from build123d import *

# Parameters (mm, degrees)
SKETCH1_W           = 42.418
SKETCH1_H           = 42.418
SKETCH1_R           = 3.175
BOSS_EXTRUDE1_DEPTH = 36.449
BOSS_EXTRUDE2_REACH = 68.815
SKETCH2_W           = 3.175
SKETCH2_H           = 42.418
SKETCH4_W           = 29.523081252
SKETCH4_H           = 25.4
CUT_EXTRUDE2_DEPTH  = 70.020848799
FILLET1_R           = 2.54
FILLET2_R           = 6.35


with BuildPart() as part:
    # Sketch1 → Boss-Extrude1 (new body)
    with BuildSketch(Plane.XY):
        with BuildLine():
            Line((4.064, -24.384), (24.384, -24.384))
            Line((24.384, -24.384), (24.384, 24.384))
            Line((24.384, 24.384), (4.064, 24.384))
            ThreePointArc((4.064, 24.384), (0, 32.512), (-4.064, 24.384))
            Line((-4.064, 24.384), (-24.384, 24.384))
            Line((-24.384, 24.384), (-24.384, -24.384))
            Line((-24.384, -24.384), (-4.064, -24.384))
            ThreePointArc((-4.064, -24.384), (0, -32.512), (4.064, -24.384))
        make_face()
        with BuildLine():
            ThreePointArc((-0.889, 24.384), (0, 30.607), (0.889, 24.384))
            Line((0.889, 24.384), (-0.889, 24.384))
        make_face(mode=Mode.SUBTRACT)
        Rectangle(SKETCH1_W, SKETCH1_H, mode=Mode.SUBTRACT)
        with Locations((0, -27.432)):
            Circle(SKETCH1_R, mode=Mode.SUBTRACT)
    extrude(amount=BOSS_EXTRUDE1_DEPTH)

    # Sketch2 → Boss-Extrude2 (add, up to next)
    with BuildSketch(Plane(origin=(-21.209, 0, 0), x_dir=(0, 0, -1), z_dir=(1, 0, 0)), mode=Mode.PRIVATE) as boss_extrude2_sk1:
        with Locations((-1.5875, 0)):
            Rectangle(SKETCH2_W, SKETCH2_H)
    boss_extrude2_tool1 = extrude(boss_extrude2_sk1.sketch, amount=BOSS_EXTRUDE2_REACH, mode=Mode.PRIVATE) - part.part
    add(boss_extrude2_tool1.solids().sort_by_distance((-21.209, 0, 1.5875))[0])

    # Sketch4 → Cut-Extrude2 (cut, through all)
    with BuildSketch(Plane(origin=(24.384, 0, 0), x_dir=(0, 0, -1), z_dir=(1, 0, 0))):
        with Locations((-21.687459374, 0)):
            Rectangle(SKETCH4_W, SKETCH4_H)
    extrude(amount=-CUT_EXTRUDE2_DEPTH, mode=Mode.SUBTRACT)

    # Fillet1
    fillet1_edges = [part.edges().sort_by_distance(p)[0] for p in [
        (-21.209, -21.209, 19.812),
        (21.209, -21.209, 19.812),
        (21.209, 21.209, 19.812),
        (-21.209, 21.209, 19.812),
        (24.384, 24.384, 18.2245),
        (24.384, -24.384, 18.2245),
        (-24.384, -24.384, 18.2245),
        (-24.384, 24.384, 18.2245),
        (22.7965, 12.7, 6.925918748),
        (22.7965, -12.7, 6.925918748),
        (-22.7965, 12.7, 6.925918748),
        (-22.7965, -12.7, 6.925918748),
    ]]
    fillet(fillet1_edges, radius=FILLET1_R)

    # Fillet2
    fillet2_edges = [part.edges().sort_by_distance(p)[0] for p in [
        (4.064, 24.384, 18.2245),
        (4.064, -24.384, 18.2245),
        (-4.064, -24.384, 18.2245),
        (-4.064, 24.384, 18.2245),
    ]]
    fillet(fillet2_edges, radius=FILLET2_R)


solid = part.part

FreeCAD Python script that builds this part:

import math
import FreeCAD as App
import Part
import Sketcher

V = App.Vector
Q = App.Units.Quantity


def edges_at(feature, points):
    """Names of the edges that pass closest to the given points."""
    edges = feature.Shape.Edges
    near = lambda p: min(range(len(edges)), key=lambda i: edges[i].distToShape(Part.Vertex(*p))[0])
    return sorted({f"Edge{near(p) + 1}" for p in points})

doc = App.newDocument("Part")
params = doc.addObject("Spreadsheet::Sheet", "Params")
for row, (alias, value) in enumerate([
    ("sketch1_radius", "0.2 in"),
    ("sketch1_diameter", "0.25 in"),
    ("sketch1_width", "0.8 in"),
    ("sketch1_width2", "1.67 in"),
    ("sketch1_width3", "0.07 in"),
    ("pad1_length", "1.435 in"),
    ("sketch2_width", "1.67 in"),
    ("sketch2_height", "0.125 in"),
    ("sketch3_width", "1 in"),
    ("fillet_radius", "0.1 in"),
    ("fillet2_radius", "0.25 in"),
], start=1):
    params.set(f"A{row}", alias)
    params.set(f"B{row}", "=" + value)
    params.setAlias(f"B{row}", alias)

body = doc.addObject("PartDesign::Body", "Body")

# Sketch on XY plane
sketch1 = body.newObject("Sketcher::SketchObject", "Sketch")
sketch1.AttachmentSupport = (doc.getObject("XY_Plane"), [""])
sketch1.MapMode = "FlatFace"
sketch1.addGeometry(Part.LineSegment(V(4.1, -24.4, 0), V(24.4, -24.4, 0)), False)
sketch1.addGeometry(Part.LineSegment(V(24.4, -24.4, 0), V(24.4, 24.4, 0)), False)
sketch1.addGeometry(Part.LineSegment(V(24.4, 24.4, 0), V(4.1, 24.4, 0)), False)
sketch1.addGeometry(Part.ArcOfCircle(Part.Circle(V(0, 27.4, 0), V(0, 0, 1), 5.1), math.radians(-37), math.radians(217)), False)
sketch1.addGeometry(Part.LineSegment(V(-4.1, 24.4, 0), V(-24.4, 24.4, 0)), False)
sketch1.addGeometry(Part.LineSegment(V(-24.4, 24.4, 0), V(-24.4, -24.4, 0)), False)
sketch1.addGeometry(Part.LineSegment(V(-24.4, -24.4, 0), V(-4.1, -24.4, 0)), False)
sketch1.addGeometry(Part.ArcOfCircle(Part.Circle(V(0, -27.4, 0), V(0, 0, 1), 5.1), math.radians(143), math.radians(397)), False)
sketch1.addGeometry(Part.Circle(V(0, -27.4, 0), V(0, 0, 1), 3.2), False)
sketch1.addGeometry(Part.LineSegment(V(21.2, -21.2, 0), V(-21.2, -21.2, 0)), False)
sketch1.addGeometry(Part.LineSegment(V(-21.2, -21.2, 0), V(-21.2, 21.2, 0)), False)
sketch1.addGeometry(Part.LineSegment(V(-21.2, 21.2, 0), V(21.2, 21.2, 0)), False)
sketch1.addGeometry(Part.LineSegment(V(21.2, 21.2, 0), V(21.2, -21.2, 0)), False)
sketch1.addGeometry(Part.LineSegment(V(0.9, 24.4, 0), V(-0.9, 24.4, 0)), False)
sketch1.addGeometry(Part.ArcOfCircle(Part.Circle(V(0, 27.4, 0), V(0, 0, 1), 3.2), math.radians(-74), math.radians(254)), False)
sketch1.addConstraint(Sketcher.Constraint("Coincident", 0, 2, 1, 1))
sketch1.addConstraint(Sketcher.Constraint("Coincident", 1, 2, 2, 1))
sketch1.addConstraint(Sketcher.Constraint("Coincident", 2, 2, 3, 1))
sketch1.addConstraint(Sketcher.Constraint("Coincident", 3, 2, 4, 1))
sketch1.addConstraint(Sketcher.Constraint("Coincident", 4, 2, 5, 1))
sketch1.addConstraint(Sketcher.Constraint("Coincident", 5, 2, 6, 1))
sketch1.addConstraint(Sketcher.Constraint("Coincident", 6, 2, 7, 1))
sketch1.addConstraint(Sketcher.Constraint("Coincident", 7, 2, 0, 1))
sketch1.addConstraint(Sketcher.Constraint("Coincident", 9, 2, 10, 1))
sketch1.addConstraint(Sketcher.Constraint("Coincident", 10, 2, 11, 1))
sketch1.addConstraint(Sketcher.Constraint("Coincident", 11, 2, 12, 1))
sketch1.addConstraint(Sketcher.Constraint("Coincident", 12, 2, 9, 1))
sketch1.addConstraint(Sketcher.Constraint("Coincident", 13, 1, 14, 1))
sketch1.addConstraint(Sketcher.Constraint("Coincident", 14, 2, 13, 2))
sketch1.addConstraint(Sketcher.Constraint("Horizontal", 0))
sketch1.addConstraint(Sketcher.Constraint("Vertical", 1))
sketch1.addConstraint(Sketcher.Constraint("Horizontal", 2))
sketch1.addConstraint(Sketcher.Constraint("Horizontal", 4))
sketch1.addConstraint(Sketcher.Constraint("Vertical", 5))
sketch1.addConstraint(Sketcher.Constraint("Horizontal", 6))
sketch1.addConstraint(Sketcher.Constraint("Horizontal", 9))
sketch1.addConstraint(Sketcher.Constraint("Vertical", 10))
sketch1.addConstraint(Sketcher.Constraint("Horizontal", 11))
sketch1.addConstraint(Sketcher.Constraint("Vertical", 12))
sketch1.addConstraint(Sketcher.Constraint("Horizontal", 13))
sketch1.addConstraint(Sketcher.Constraint("Coincident", 8, 3, 7, 3))
sketch1.addConstraint(Sketcher.Constraint("Coincident", 14, 3, 3, 3))
sketch1.addConstraint(Sketcher.Constraint("Equal", 3, 7))
sketch1.addConstraint(Sketcher.Constraint("Equal", 8, 14))
sketch1.addConstraint(Sketcher.Constraint("Symmetric", 3, 3, 7, 3, -1, 1))
sketch1.addConstraint(Sketcher.Constraint("Symmetric", 0, 2, 4, 2, -1, 1))
sketch1.addConstraint(Sketcher.Constraint("Symmetric", 9, 2, 11, 2, -1, 1))
sketch1.addConstraint(Sketcher.Constraint("Symmetric", 2, 2, 3, 2, -2))
sketch1.addConstraint(Sketcher.Constraint("Horizontal", 0, 2, 5, 2))
sketch1.addConstraint(Sketcher.Constraint("Horizontal", 4, 2, 13, 1))
sketch1.addConstraint(Sketcher.Constraint("Equal", 11, 10))
sketch1.addConstraint(Sketcher.Constraint("Radius", 3, Q("0.2 in")))
sketch1.addConstraint(Sketcher.Constraint("Diameter", 8, Q("0.25 in")))
sketch1.addConstraint(Sketcher.Constraint("DistanceX", 0, 1, 0, 2, Q("0.8 in")))
sketch1.addConstraint(Sketcher.Constraint("DistanceX", 9, 2, 9, 1, Q("1.67 in")))
sketch1.addConstraint(Sketcher.Constraint("DistanceX", 13, 2, 13, 1, Q("0.07 in")))
sketch1.addConstraint(Sketcher.Constraint("DistanceY", 1, 1, 1, 2, Q("1.92 in")))
sketch1.setExpression("Constraints[36]", "Params.sketch1_radius")
sketch1.setExpression("Constraints[37]", "Params.sketch1_diameter")
sketch1.setExpression("Constraints[38]", "Params.sketch1_width")
sketch1.setExpression("Constraints[39]", "Params.sketch1_width2")
sketch1.setExpression("Constraints[40]", "Params.sketch1_width3")
pad1 = body.newObject("PartDesign::Pad", "Pad")
pad1.Profile = sketch1
pad1.setExpression("Length", "Params.pad1_length")

# Sketch on YZ plane
sketch2 = body.newObject("Sketcher::SketchObject", "Sketch001")
sketch2.AttachmentSupport = (doc.getObject("YZ_Plane"), [""])
sketch2.MapMode = "FlatFace"
sketch2.AttachmentOffset = App.Placement(V(0, 0, -0.835 * 25.4), App.Rotation())
sketch2.addGeometry(Part.LineSegment(V(21.2, 3.2, 0), V(-21.2, 3.2, 0)), False)
sketch2.addGeometry(Part.LineSegment(V(-21.2, 3.2, 0), V(-21.2, 0, 0)), False)
sketch2.addGeometry(Part.LineSegment(V(-21.2, 0, 0), V(21.2, 0, 0)), False)
sketch2.addGeometry(Part.LineSegment(V(21.2, 0, 0), V(21.2, 3.2, 0)), False)
sketch2.addConstraint(Sketcher.Constraint("Coincident", 0, 2, 1, 1))
sketch2.addConstraint(Sketcher.Constraint("Coincident", 1, 2, 2, 1))
sketch2.addConstraint(Sketcher.Constraint("Coincident", 2, 2, 3, 1))
sketch2.addConstraint(Sketcher.Constraint("Coincident", 3, 2, 0, 1))
sketch2.addConstraint(Sketcher.Constraint("Horizontal", 0))
sketch2.addConstraint(Sketcher.Constraint("Vertical", 1))
sketch2.addConstraint(Sketcher.Constraint("Horizontal", 2))
sketch2.addConstraint(Sketcher.Constraint("Vertical", 3))
sketch2.addConstraint(Sketcher.Constraint("Symmetric", 1, 2, 2, 2, -1, 1))
sketch2.addConstraint(Sketcher.Constraint("DistanceX", 0, 2, 0, 1, Q("1.67 in")))
sketch2.addConstraint(Sketcher.Constraint("DistanceY", 1, 2, 1, 1, Q("0.125 in")))
sketch2.setExpression("Constraints[9]", "Params.sketch2_width")
sketch2.setExpression("Constraints[10]", "Params.sketch2_height")
pad2 = body.newObject("PartDesign::Pad", "Pad001")
pad2.Profile = sketch2
pad2.Type = "UpToFirst"

# Sketch on YZ plane
sketch3 = body.newObject("Sketcher::SketchObject", "Sketch002")
sketch3.AttachmentSupport = (doc.getObject("YZ_Plane"), [""])
sketch3.MapMode = "FlatFace"
sketch3.AttachmentOffset = App.Placement(V(0, 0, 0.96 * 25.4), App.Rotation())
sketch3.addGeometry(Part.LineSegment(V(13, 36, 0), V(-13, 36, 0)), False)
sketch3.addGeometry(Part.LineSegment(V(-13, 36, 0), V(-13, 7, 0)), False)
sketch3.addGeometry(Part.LineSegment(V(-13, 7, 0), V(13, 7, 0)), False)
sketch3.addGeometry(Part.LineSegment(V(13, 7, 0), V(13, 36, 0)), False)
sketch3.addConstraint(Sketcher.Constraint("Coincident", 0, 2, 1, 1))
sketch3.addConstraint(Sketcher.Constraint("Coincident", 1, 2, 2, 1))
sketch3.addConstraint(Sketcher.Constraint("Coincident", 2, 2, 3, 1))
sketch3.addConstraint(Sketcher.Constraint("Coincident", 3, 2, 0, 1))
sketch3.addConstraint(Sketcher.Constraint("Horizontal", 0))
sketch3.addConstraint(Sketcher.Constraint("Vertical", 1))
sketch3.addConstraint(Sketcher.Constraint("Horizontal", 2))
sketch3.addConstraint(Sketcher.Constraint("Vertical", 3))
sketch3.addConstraint(Sketcher.Constraint("DistanceX", 0, 2, 0, 1, Q("1 in")))
sketch3.addConstraint(Sketcher.Constraint("DistanceX", 0, 2, -1, 1, Q("0.5 in")))
sketch3.addConstraint(Sketcher.Constraint("DistanceY", -1, 1, 0, 2, Q("1.435 in")))
sketch3.addConstraint(Sketcher.Constraint("DistanceY", 1, 2, 1, 1, 29.523081))
sketch3.setExpression("Constraints[8]", "Params.sketch3_width")
pocket1 = body.newObject("PartDesign::Pocket", "Pocket")
pocket1.Profile = sketch3
pocket1.Type = "ThroughAll"
doc.recompute()

fillet = body.newObject("PartDesign::Fillet", "Fillet")
fillet.Base = (pocket1, edges_at(pocket1, [
    (-21.209, -21.209, 19.812),
    (21.209, -21.209, 19.812),
    (21.209, 21.209, 19.812),
    (-21.209, 21.209, 19.812),
    (24.384, 24.384, 18.224),
    (24.384, -24.384, 18.224),
    (-24.384, -24.384, 18.224),
    (-24.384, 24.384, 18.224),
    (22.797, 12.7, 6.926),
    (22.797, -12.7, 6.926),
    (-22.797, 12.7, 6.926),
    (-22.797, -12.7, 6.926),
]))
fillet.setExpression("Radius", "Params.fillet_radius")
doc.recompute()

fillet2 = body.newObject("PartDesign::Fillet", "Fillet001")
fillet2.Base = (fillet, edges_at(fillet, [
    (4.064, 24.384, 18.224),
    (4.064, -24.384, 18.224),
    (-4.064, -24.384, 18.224),
    (-4.064, 24.384, 18.224),
]))
fillet2.setExpression("Radius", "Params.fillet2_radius")

doc.recompute()
